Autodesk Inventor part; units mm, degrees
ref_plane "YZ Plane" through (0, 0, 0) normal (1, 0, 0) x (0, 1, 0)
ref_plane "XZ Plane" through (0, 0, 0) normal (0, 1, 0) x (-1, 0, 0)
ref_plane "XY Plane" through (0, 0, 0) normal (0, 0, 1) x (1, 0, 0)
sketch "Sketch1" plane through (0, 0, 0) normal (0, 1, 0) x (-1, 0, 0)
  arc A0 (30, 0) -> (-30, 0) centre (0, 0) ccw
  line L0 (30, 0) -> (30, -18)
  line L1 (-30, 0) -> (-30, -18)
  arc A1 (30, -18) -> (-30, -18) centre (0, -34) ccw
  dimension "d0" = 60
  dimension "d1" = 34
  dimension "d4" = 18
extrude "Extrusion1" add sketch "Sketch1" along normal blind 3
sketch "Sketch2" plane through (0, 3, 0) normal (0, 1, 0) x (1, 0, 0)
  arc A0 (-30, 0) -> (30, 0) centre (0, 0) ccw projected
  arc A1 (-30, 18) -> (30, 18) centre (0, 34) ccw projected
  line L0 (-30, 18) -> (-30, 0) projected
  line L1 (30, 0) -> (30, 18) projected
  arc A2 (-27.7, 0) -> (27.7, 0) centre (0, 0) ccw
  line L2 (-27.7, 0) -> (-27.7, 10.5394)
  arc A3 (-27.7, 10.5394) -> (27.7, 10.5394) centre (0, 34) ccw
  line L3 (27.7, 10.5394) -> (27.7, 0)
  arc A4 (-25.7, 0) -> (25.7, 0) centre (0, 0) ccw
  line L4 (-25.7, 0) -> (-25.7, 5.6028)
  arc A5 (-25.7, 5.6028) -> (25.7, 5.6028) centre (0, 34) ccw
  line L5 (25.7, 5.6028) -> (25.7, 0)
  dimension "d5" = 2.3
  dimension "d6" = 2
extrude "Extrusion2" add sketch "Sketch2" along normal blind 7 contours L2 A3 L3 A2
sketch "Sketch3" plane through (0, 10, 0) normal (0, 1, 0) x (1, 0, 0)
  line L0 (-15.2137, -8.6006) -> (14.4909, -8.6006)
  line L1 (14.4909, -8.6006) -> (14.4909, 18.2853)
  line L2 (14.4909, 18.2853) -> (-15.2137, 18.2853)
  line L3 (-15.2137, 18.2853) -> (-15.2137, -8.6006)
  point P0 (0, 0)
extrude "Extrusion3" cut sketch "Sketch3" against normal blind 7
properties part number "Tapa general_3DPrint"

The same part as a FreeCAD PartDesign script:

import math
import FreeCAD as App
import Part
import Sketcher
from FreeCAD import Vector
Q = App.Units.Quantity


def add_polygon(sketch, points):
    """Adds a closed chain of lines whose ends are joined by coincident constraints."""
    first, n = sketch.GeometryCount, len(points)
    for a, b in zip(points, points[1:] + points[:1]):
        sketch.addGeometry(Part.LineSegment(App.Vector(*a, 0), App.Vector(*b, 0)), False)
    for i in range(n):
        sketch.addConstraint(Sketcher.Constraint("Coincident", first + i, 2, first + (i + 1) % n, 1))

doc = App.newDocument("Part")
body = doc.addObject("PartDesign::Body", "Body")

# Sketch on XZ plane
sketch1 = body.newObject("Sketcher::SketchObject", "Sketch")
sketch1.AttachmentSupport = (doc.getObject("XZ_Plane"), [""])
sketch1.MapMode = "FlatFace"
sketch1.addGeometry([
    Part.LineSegment(Vector(-30, -18, 0), Vector(-30, 0, 0)),
    Part.ArcOfCircle(Part.Circle(Vector(0, 0, 0), Vector(0, 0, 1), 30), math.radians(0), math.radians(180)),
    Part.LineSegment(Vector(30, 0, 0), Vector(30, -18, 0)),
    Part.ArcOfCircle(Part.Circle(Vector(0, -34, 0), Vector(0, 0, 1), 34), math.radians(28), math.radians(152)),
], False)
sketch1.addConstraint([
    Sketcher.Constraint("Tangent", 0, 2, 1, 2),
    Sketcher.Constraint("Tangent", 1, 1, 2, 1),
    Sketcher.Constraint("Coincident", 2, 2, 3, 1),
    Sketcher.Constraint("Coincident", 3, 2, 0, 1),
    Sketcher.Constraint("Vertical", 0),
    Sketcher.Constraint("Vertical", 2),
    Sketcher.Constraint("Coincident", 1, 3, -1, 1),
    Sketcher.Constraint("PointOnObject", 3, 3, -2),
    Sketcher.Constraint("Radius", 1, Q("30 mm")),
    Sketcher.Constraint("Radius", 3, Q("34 mm")),
    Sketcher.Constraint("DistanceY", 0, 1, 0, 2, Q("18 mm")),
])
pad1 = body.newObject("PartDesign::Pad", "Pad")
pad1.Profile = sketch1
pad1.Length = 3
pad1.Reversed = True

# Sketch on XZ plane
sketch2 = body.newObject("Sketcher::SketchObject", "Sketch001")
sketch2.AttachmentSupport = (doc.getObject("XZ_Plane"), [""])
sketch2.MapMode = "FlatFace"
sketch2.AttachmentOffset = App.Placement(Vector(0, 0, -3), App.Rotation())
sketch2.addGeometry([
    Part.LineSegment(Vector(-28, -11, 0), Vector(-28, 0, 0)),  # 0
    Part.ArcOfCircle(Part.Circle(Vector(0, 0, 0), Vector(0, 0, 1), 28), math.radians(0), math.radians(180)),  # 1
    Part.LineSegment(Vector(28, 0, 0), Vector(28, -11, 0)),  # 2
    Part.ArcOfCircle(Part.Circle(Vector(0, -34, 0), Vector(0, 0, 1), 36), math.radians(40), math.radians(140)),  # 3
    Part.ArcOfCircle(Part.Circle(Vector(0, 0, 0), Vector(0, 0, 1), 26), math.radians(0), math.radians(180)),  # 4
    Part.LineSegment(Vector(-26, 0, 0), Vector(-26, -6, 0)),  # 5
    Part.ArcOfCircle(Part.Circle(Vector(0, -34, 0), Vector(0, 0, 1), 38), math.radians(48), math.radians(132)),  # 6
    Part.LineSegment(Vector(26, -6, 0), Vector(26, 0, 0)),  # 7
], False)
sketch2.addConstraint([
    Sketcher.Constraint("Tangent", 0, 2, 1, 2),
    Sketcher.Constraint("Tangent", 1, 1, 2, 1),
    Sketcher.Constraint("Coincident", 2, 2, 3, 1),
    Sketcher.Constraint("Coincident", 3, 2, 0, 1),
    Sketcher.Constraint("Tangent", 4, 2, 5, 1),
    Sketcher.Constraint("Coincident", 5, 2, 6, 2),
    Sketcher.Constraint("Coincident", 6, 1, 7, 1),
    Sketcher.Constraint("Tangent", 7, 2, 4, 1),
    Sketcher.Constraint("Vertical", 0),
    Sketcher.Constraint("Vertical", 2),
    Sketcher.Constraint("Vertical", 5),
    Sketcher.Constraint("Vertical", 7),
    Sketcher.Constraint("Coincident", 1, 3, -1, 1),
    Sketcher.Constraint("Coincident", 4, 3, -1, 1),
    Sketcher.Constraint("Coincident", 6, 3, 3, 3),
    Sketcher.Constraint("PointOnObject", 3, 3, -2),
    Sketcher.Constraint("DistanceX", 0, 2, 4, 2, Q("2 mm")),
    Sketcher.Constraint("Radius", 1, Q("27.7 mm")),
    Sketcher.Constraint("Radius", 3, Q("36.3 mm")),
    Sketcher.Constraint("Radius", 6, Q("38.3 mm")),
    Sketcher.Constraint("DistanceY", 3, 3, -1, 1, Q("34 mm")),
])
pad2 = body.newObject("PartDesign::Pad", "Pad001")
pad2.Profile = sketch2
pad2.Length = 7
pad2.Reversed = True

# Sketch on XZ plane
sketch3 = body.newObject("Sketcher::SketchObject", "Sketch002")
sketch3.AttachmentSupport = (doc.getObject("XZ_Plane"), [""])
sketch3.MapMode = "FlatFace"
sketch3.AttachmentOffset = App.Placement(Vector(0, 0, -10), App.Rotation())
add_polygon(sketch3, [(-15, -18), (-15, 9), (14, 9), (14, -18)])  # lines 0-3
sketch3.addConstraint([
    Sketcher.Constraint("Vertical", 0),
    Sketcher.Constraint("Horizontal", 1),
    Sketcher.Constraint("Vertical", 2),
    Sketcher.Constraint("Horizontal", 3),
    Sketcher.Constraint("DistanceY", 0, 1, 0, 2, Q("26.886 mm")),
    Sketcher.Constraint("DistanceX", 1, 1, 1, 2, Q("29.7046 mm")),
    Sketcher.Constraint("DistanceX", -1, 1, 1, 2, Q("14.491 mm")),
    Sketcher.Constraint("DistanceY", -1, 1, 0, 2, Q("8.6006 mm")),
])
pocket1 = body.newObject("PartDesign::Pocket", "Pocket")
pocket1.Profile = sketch3
pocket1.Length = 7
pocket1.Reversed = True

doc.recompute()
